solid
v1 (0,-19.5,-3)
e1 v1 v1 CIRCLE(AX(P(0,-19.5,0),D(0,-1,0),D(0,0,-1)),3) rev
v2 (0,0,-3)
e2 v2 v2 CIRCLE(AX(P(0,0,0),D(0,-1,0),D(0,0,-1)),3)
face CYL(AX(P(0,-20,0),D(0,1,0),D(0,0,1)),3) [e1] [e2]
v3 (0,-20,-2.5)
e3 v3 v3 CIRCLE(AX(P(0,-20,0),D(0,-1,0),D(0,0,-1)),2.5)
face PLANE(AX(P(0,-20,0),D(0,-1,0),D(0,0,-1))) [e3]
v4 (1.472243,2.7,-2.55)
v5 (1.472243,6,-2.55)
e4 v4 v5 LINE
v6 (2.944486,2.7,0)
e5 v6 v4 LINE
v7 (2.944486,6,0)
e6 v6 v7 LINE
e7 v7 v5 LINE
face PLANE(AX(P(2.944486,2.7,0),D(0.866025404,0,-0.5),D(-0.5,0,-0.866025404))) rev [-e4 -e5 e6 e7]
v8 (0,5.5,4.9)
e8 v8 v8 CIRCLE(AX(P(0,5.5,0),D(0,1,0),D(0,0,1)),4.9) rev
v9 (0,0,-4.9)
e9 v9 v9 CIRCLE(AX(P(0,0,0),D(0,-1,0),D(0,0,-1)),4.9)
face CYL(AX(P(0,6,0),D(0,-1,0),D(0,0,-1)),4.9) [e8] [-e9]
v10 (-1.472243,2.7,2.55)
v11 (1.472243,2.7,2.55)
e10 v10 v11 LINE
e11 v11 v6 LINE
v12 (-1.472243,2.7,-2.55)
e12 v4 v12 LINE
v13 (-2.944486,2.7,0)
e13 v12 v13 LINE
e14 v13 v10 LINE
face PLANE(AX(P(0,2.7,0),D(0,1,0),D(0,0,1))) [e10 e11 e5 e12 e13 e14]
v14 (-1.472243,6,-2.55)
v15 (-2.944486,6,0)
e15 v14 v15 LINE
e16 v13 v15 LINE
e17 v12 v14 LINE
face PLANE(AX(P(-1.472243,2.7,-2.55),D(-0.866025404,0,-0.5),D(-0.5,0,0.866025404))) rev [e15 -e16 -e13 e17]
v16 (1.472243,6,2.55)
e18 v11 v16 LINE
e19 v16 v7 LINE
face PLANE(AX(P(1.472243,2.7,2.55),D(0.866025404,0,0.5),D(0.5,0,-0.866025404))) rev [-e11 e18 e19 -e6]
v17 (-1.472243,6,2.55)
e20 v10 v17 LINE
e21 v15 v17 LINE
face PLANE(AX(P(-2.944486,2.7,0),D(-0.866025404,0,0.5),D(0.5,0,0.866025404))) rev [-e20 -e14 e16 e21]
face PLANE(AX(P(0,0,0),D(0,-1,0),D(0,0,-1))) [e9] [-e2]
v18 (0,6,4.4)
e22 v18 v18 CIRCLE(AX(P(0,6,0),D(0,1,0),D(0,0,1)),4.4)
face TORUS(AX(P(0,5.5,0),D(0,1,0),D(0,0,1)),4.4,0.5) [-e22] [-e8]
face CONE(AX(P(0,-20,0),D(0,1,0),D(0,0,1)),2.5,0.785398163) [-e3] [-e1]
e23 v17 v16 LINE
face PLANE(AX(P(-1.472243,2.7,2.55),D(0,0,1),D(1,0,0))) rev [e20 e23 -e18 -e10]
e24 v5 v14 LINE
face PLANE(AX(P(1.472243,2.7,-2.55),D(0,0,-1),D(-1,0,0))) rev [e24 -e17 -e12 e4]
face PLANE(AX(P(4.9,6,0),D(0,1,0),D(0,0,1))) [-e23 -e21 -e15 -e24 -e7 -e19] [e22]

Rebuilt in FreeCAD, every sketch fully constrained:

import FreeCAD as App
import Part
import Sketcher
Q = App.Units.Quantity


def edges_at(feature, points):
    """Names of the edges that pass closest to the given points."""
    edges = feature.Shape.Edges
    near = lambda p: min(range(len(edges)), key=lambda i: edges[i].distToShape(Part.Vertex(*p))[0])
    return sorted({f"Edge{near(p) + 1}" for p in points})


def add_polygon(sketch, points):
    """Adds a closed chain of lines whose ends are joined by coincident constraints."""
    first, n = sketch.GeometryCount, len(points)
    for a, b in zip(points, points[1:] + points[:1]):
        sketch.addGeometry(Part.LineSegment(App.Vector(*a, 0), App.Vector(*b, 0)), False)
    for i in range(n):
        sketch.addConstraint(Sketcher.Constraint("Coincident", first + i, 2, first + (i + 1) % n, 1))

doc = App.newDocument("Part")
params = doc.addObject("Spreadsheet::Sheet", "Params")
for row, (alias, value) in enumerate([
    ("sketch1_height", "6 mm"),
    ("sketch1_width", "4.9 mm"),
    ("revolution_angle", "360 deg"),
    ("sketch2_diameter", "6 mm"),
    ("pad1_length", "20 mm"),
    ("pocket1_length", "3.3 mm"),
    ("chamfer_size", "0.5 mm"),
    ("fillet_radius", "0.5 mm"),
], start=1):
    params.set(f"A{row}", alias)
    params.set(f"B{row}", "=" + value)
    params.setAlias(f"B{row}", alias)

body = doc.addObject("PartDesign::Body", "Body")

sketch1 = body.newObject("Sketcher::SketchObject", "Sketch")
sketch1.AttachmentSupport = (doc.getObject("XY_Plane"), [""])
sketch1.MapMode = "FlatFace"
add_polygon(sketch1, [(0, 6), (0, 0), (4.9, 0), (4.9, 6)])
sketch1.addConstraint([
    Sketcher.Constraint("Vertical", 0),
    Sketcher.Constraint("Horizontal", 1),
    Sketcher.Constraint("Vertical", 2),
    Sketcher.Constraint("Horizontal", 3),
    Sketcher.Constraint("Coincident", 0, 2, -1, 1),
    Sketcher.Constraint("DistanceY", 0, 2, 0, 1, 6.0),
    Sketcher.Constraint("DistanceX", 1, 1, 1, 2, 4.9),
])
sketch1.setExpression("Constraints[9]", "Params.sketch1_height")
sketch1.setExpression("Constraints[10]", "Params.sketch1_width")
revolution = body.newObject("PartDesign::Revolution", "Revolution")
revolution.Profile = sketch1
revolution.ReferenceAxis = (sketch1, ["V_Axis"])
revolution.setExpression("Angle", "Params.revolution_angle")

sketch2 = body.newObject("Sketcher::SketchObject", "Sketch001")
sketch2.AttachmentSupport = (doc.getObject("XZ_Plane"), [""])
sketch2.MapMode = "FlatFace"
sketch2.addGeometry(Part.Circle(App.Vector(0, 0, 0), App.Vector(0, 0, 1), 3), False)
sketch2.addConstraint([
    Sketcher.Constraint("Coincident", 0, 3, -1, 1),
    Sketcher.Constraint("Diameter", 0, 6.0),
])
sketch2.setExpression("Constraints[1]", "Params.sketch2_diameter")
pad1 = body.newObject("PartDesign::Pad", "Pad")
pad1.Profile = sketch2
pad1.setExpression("Length", "Params.pad1_length")

sketch3 = body.newObject("Sketcher::SketchObject", "Sketch002")
sketch3.AttachmentSupport = (doc.getObject("XZ_Plane"), [""])
sketch3.MapMode = "FlatFace"
sketch3.AttachmentOffset = App.Placement(App.Vector(0, 0, -6), App.Rotation())
add_polygon(sketch3, [(-1.5, 2.5), (1.5, 2.5), (2.9, 0), (1.5, -2.5), (-1.5, -2.5), (-2.9, 0)])
sketch3.addConstraint([
    Sketcher.Constraint("Horizontal", 0),
    Sketcher.Constraint("Horizontal", 3),
    Sketcher.Constraint("Symmetric", 0, 2, 3, 2, -1, 1),
    Sketcher.Constraint("Symmetric", 1, 2, 4, 2, -1, 1),
    Sketcher.Constraint("PointOnObject", 1, 2, -1),
    Sketcher.Constraint("Parallel", 2, 5),
    Sketcher.Constraint("Vertical", 0, 2, 2, 2),
    Sketcher.Constraint("Angle", 1, Q("-60 deg")),
    Sketcher.Constraint("DistanceY", 2, 2, 0, 2, 5.1),
    Sketcher.Constraint("DistanceX", 0, 1, 0, 2, 2.944486),
])
pocket1 = body.newObject("PartDesign::Pocket", "Pocket")
pocket1.Profile = sketch3
pocket1.setExpression("Length", "Params.pocket1_length")
pocket1.Reversed = True
doc.recompute()

chamfer = body.newObject("PartDesign::Chamfer", "Chamfer")
chamfer.Base = (pocket1, edges_at(pocket1, [(0, -20, 3)]))
chamfer.setExpression("Size", "Params.chamfer_size")
doc.recompute()

fillet = body.newObject("PartDesign::Fillet", "Fillet")
fillet.Base = (chamfer, edges_at(chamfer, [(0, 6, 4.9)]))
fillet.setExpression("Radius", "Params.fillet_radius")

doc.recompute()
